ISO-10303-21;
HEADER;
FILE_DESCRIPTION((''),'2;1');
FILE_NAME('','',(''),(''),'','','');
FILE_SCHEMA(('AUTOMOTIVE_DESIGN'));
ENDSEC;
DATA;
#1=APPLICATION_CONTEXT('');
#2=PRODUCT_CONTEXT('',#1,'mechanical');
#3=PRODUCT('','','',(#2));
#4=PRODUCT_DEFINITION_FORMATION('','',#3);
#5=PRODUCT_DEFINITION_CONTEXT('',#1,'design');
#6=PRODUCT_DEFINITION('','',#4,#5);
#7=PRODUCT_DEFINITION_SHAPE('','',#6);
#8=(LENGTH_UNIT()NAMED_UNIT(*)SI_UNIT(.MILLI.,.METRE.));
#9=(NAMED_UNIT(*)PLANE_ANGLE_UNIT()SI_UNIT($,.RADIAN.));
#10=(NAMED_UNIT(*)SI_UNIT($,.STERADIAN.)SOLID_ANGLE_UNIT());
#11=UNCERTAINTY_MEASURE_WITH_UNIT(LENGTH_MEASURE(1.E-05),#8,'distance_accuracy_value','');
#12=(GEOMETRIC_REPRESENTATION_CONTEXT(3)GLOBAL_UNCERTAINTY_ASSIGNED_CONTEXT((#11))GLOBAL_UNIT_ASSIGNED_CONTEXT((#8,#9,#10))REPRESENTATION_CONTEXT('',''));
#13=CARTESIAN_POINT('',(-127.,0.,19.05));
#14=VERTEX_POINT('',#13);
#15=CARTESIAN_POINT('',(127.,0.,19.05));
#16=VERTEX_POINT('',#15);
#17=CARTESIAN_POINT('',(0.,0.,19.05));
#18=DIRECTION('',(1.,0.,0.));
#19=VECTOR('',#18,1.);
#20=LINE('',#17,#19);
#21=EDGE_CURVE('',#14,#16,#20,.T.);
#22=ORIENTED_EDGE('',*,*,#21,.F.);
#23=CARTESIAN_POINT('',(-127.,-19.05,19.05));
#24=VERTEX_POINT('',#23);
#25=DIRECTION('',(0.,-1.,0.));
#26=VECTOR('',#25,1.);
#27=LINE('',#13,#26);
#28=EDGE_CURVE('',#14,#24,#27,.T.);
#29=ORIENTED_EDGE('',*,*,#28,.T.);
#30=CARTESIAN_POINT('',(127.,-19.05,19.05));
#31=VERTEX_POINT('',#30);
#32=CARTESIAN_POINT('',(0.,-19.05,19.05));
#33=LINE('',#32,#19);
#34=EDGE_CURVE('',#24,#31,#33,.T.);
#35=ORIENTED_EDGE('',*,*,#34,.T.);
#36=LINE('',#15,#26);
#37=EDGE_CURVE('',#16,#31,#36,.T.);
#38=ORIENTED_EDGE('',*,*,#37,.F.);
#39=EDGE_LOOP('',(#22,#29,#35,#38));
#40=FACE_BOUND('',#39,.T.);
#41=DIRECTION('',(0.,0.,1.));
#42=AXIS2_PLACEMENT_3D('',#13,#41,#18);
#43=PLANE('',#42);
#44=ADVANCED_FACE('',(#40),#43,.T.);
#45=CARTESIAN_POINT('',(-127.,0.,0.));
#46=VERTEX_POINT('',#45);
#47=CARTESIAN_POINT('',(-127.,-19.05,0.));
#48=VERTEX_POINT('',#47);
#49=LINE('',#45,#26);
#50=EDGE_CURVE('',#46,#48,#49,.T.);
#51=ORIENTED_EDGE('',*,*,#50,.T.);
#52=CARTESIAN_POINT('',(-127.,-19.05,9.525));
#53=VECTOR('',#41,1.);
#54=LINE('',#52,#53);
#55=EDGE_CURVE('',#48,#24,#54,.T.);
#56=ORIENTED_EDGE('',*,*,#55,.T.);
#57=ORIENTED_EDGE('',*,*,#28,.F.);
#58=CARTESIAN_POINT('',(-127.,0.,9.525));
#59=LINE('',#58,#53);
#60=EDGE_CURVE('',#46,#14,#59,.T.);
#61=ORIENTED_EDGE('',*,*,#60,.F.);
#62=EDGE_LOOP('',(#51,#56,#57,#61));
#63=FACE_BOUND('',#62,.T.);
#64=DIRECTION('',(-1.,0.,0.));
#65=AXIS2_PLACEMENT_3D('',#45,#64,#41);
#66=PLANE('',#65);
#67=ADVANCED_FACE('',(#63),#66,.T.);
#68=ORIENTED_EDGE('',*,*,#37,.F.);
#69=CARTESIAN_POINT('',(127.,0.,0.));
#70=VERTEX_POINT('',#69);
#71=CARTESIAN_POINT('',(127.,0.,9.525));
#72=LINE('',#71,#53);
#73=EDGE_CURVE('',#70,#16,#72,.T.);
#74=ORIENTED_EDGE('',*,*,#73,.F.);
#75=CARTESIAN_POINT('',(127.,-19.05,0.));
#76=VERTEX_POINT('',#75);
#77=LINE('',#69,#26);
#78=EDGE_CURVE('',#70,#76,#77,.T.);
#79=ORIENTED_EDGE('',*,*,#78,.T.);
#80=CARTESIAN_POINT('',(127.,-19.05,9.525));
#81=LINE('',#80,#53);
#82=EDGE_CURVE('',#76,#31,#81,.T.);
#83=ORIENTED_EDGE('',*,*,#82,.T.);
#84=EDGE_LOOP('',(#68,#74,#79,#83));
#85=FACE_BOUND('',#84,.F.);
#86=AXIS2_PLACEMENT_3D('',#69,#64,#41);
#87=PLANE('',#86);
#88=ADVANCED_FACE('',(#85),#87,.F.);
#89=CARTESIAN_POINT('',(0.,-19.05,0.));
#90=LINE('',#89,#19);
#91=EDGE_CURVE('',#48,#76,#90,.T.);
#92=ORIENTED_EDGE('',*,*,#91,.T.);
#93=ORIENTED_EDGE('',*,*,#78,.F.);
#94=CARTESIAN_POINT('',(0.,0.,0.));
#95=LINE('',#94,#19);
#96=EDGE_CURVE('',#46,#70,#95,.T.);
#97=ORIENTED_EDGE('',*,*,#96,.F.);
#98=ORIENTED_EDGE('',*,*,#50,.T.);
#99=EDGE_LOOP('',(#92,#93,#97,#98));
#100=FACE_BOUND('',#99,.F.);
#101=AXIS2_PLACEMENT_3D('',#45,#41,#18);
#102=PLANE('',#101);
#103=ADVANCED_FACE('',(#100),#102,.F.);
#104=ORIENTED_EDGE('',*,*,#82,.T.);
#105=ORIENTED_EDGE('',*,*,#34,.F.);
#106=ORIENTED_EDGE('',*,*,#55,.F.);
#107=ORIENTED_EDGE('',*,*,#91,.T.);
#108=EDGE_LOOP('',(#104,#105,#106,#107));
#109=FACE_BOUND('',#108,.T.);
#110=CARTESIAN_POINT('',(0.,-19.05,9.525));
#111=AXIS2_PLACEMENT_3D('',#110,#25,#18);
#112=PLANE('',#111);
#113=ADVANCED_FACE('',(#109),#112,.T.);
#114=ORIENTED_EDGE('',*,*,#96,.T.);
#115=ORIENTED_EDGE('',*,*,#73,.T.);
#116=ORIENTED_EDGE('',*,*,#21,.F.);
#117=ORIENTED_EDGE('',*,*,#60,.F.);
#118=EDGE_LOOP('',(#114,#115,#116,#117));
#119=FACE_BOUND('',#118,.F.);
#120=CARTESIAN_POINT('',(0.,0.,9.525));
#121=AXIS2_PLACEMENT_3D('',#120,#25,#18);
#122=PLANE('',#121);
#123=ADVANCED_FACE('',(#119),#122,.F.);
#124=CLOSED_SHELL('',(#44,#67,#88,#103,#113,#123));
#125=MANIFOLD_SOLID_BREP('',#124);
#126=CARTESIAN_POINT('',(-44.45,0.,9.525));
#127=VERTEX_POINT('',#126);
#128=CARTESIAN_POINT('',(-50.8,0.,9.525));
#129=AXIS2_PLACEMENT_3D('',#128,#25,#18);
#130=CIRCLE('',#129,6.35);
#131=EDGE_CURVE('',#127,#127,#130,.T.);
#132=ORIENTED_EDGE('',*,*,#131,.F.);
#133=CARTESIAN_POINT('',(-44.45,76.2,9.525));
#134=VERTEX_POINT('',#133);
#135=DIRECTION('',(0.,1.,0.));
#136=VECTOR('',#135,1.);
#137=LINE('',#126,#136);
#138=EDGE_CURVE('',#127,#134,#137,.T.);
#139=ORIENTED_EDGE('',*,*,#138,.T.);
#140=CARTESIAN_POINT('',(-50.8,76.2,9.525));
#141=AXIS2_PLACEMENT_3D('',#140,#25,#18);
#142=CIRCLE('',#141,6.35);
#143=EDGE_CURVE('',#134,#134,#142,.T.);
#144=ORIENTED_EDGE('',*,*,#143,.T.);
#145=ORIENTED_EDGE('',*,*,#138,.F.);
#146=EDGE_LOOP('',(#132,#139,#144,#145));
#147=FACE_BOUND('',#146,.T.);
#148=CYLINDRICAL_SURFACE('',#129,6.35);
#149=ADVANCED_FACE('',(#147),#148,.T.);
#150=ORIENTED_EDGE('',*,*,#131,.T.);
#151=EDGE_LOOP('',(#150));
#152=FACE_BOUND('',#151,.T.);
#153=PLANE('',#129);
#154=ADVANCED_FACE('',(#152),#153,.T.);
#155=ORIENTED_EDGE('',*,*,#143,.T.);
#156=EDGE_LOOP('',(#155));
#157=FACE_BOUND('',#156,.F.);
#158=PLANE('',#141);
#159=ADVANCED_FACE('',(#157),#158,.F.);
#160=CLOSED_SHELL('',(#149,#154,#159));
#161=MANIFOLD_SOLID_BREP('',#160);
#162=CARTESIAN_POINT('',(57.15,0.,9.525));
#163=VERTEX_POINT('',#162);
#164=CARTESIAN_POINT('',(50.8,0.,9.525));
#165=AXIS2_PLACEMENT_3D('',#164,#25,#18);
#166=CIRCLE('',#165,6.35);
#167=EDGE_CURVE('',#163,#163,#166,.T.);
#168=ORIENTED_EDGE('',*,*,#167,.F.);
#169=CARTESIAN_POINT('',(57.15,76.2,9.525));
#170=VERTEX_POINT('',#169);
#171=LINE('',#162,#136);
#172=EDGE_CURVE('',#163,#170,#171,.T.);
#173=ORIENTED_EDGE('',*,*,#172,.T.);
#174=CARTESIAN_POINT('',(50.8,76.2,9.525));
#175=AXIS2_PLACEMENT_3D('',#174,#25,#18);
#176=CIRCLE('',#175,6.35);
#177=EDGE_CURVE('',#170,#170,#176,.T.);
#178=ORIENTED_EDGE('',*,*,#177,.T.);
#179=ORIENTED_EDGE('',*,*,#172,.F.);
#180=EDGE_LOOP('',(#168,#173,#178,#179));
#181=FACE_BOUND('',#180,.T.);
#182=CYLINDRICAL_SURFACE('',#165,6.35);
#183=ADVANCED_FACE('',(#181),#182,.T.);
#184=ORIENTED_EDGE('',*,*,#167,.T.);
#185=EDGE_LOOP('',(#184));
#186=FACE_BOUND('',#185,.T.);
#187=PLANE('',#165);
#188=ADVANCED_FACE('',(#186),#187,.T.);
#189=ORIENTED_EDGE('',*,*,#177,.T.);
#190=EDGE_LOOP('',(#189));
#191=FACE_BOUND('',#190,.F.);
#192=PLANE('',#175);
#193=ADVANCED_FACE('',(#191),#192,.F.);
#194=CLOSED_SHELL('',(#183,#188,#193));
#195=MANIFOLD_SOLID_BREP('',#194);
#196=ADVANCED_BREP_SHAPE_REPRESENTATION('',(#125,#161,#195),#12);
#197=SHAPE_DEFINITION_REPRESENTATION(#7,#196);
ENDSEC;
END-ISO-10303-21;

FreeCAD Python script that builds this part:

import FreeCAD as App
import Part
import Sketcher
from FreeCAD import Vector
Q = App.Units.Quantity


def add_polygon(sketch, points):
    """Adds a closed chain of lines whose ends are joined by coincident constraints."""
    first, n = sketch.GeometryCount, len(points)
    for a, b in zip(points, points[1:] + points[:1]):
        sketch.addGeometry(Part.LineSegment(App.Vector(*a, 0), App.Vector(*b, 0)), False)
    for i in range(n):
        sketch.addConstraint(Sketcher.Constraint("Coincident", first + i, 2, first + (i + 1) % n, 1))

doc = App.newDocument("Part")
body = doc.addObject("PartDesign::Body", "Body")

sketch1 = doc.addObject("Sketcher::SketchObject", "Sketch")
body.addObject(sketch1)
sketch1.AttachmentSupport = (doc.XZ_Plane, [""])
sketch1.MapMode = "FlatFace"
add_polygon(sketch1, [(-127, 19), (-127, 0), (127, 0), (127, 19)])
sketch1.addConstraint([
    Sketcher.Constraint("Vertical", 0),
    Sketcher.Constraint("Horizontal", 1),
    Sketcher.Constraint("Vertical", 2),
    Sketcher.Constraint("Horizontal", 3),
    Sketcher.Constraint("Symmetric", 0, 2, 1, 2, -1, 1),
    Sketcher.Constraint("DistanceX", 1, 1, 1, 2, Q("10 in")),
    Sketcher.Constraint("DistanceY", 0, 2, 0, 1, Q("0.75 in")),
])
pad1 = doc.addObject("PartDesign::Pad", "Pad")
body.addObject(pad1)
pad1.Profile = sketch1
pad1.Length = Q("0.75 in")
body2 = doc.addObject("PartDesign::Body", "Body001")
body2.AllowCompound = True

sketch2 = doc.addObject("Sketcher::SketchObject", "Sketch001")
body2.addObject(sketch2)
sketch2.AttachmentSupport = (doc.getObject("XZ_Plane001"), [""])
sketch2.MapMode = "FlatFace"
sketch2.addGeometry([
    Part.Circle(Vector(51, 10, 0), Vector(0, 0, 1), 6),
    Part.Circle(Vector(-51, 10, 0), Vector(0, 0, 1), 6),
], False)
sketch2.addConstraint([
    Sketcher.Constraint("Equal", 0, 1),
    Sketcher.Constraint("Symmetric", 0, 3, 1, 3, -2),
    Sketcher.Constraint("Diameter", 0, Q("0.5 in")),
    Sketcher.Constraint("DistanceX", -1, 1, 0, 3, Q("2 in")),
    Sketcher.Constraint("DistanceY", -1, 1, 0, 3, Q("0.375 in")),
])
pad2 = doc.addObject("PartDesign::Pad", "Pad001")
body2.addObject(pad2)
pad2.Profile = sketch2
pad2.Length = Q("3 in")
pad2.Reversed = True

doc.recompute()
